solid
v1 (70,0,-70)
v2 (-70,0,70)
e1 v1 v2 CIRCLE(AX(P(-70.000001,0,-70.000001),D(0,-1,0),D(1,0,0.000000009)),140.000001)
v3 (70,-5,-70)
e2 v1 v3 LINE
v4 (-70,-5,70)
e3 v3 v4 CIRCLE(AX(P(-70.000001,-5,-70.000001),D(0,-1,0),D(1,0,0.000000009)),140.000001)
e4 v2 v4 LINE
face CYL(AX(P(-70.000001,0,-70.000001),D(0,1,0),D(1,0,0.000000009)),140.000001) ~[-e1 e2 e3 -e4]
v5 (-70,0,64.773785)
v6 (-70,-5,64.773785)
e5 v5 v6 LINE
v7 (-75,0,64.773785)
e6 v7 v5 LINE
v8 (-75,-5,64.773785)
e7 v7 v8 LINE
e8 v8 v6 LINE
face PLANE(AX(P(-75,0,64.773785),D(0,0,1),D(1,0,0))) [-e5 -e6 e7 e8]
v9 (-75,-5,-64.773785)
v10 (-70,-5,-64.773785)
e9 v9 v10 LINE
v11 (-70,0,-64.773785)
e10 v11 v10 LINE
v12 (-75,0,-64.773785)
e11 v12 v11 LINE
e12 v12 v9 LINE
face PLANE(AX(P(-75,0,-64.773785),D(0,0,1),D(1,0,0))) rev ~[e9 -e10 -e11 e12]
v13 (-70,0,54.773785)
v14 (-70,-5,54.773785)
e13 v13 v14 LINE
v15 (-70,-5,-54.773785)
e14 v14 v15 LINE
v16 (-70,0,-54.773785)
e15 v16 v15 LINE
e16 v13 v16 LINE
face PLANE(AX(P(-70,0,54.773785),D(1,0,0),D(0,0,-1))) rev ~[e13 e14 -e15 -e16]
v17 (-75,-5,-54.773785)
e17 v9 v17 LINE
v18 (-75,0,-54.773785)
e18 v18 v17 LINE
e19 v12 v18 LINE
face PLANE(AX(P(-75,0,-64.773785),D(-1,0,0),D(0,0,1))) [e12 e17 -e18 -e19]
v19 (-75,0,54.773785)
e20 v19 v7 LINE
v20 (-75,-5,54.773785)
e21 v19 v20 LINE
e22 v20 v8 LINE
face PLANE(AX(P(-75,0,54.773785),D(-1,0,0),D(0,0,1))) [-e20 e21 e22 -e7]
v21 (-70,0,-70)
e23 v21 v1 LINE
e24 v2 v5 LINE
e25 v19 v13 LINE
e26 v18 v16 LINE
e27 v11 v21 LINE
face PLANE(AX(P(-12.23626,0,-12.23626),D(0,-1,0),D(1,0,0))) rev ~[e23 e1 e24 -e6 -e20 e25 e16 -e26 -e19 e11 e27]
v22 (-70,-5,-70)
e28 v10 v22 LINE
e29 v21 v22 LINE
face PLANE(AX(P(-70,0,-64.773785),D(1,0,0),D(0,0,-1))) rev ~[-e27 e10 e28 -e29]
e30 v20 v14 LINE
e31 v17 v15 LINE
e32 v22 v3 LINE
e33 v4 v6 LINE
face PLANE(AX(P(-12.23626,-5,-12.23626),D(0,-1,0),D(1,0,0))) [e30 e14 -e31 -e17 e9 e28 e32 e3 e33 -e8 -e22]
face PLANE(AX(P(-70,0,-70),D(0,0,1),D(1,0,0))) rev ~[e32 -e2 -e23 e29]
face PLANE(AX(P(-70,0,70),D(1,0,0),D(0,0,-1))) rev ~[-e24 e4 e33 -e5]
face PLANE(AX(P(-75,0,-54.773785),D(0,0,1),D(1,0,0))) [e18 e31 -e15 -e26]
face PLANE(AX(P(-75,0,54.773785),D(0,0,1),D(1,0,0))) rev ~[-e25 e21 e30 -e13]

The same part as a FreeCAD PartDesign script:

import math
import FreeCAD as App
import Part
import Sketcher

V = App.Vector
Q = App.Units.Quantity

doc = App.newDocument("Part")
body = doc.addObject("PartDesign::Body", "Body")

sketch1 = doc.addObject("Sketcher::SketchObject", "Sketch")
body.addObject(sketch1)
sketch1.AttachmentSupport = (doc.XZ_Plane, [""])
sketch1.MapMode = "FlatFace"
sketch1.addGeometry(Part.LineSegment(V(-70, -70, 0), V(70, -70, 0)), False)
sketch1.addGeometry(Part.ArcOfCircle(Part.Circle(V(-70, -70, 0), V(0, 0, 1), 140), math.radians(0), math.radians(90)), False)
sketch1.addGeometry(Part.LineSegment(V(-70, 70, 0), V(-70, 65, 0)), False)
sketch1.addGeometry(Part.LineSegment(V(-70, 65, 0), V(-75, 65, 0)), False)
sketch1.addGeometry(Part.LineSegment(V(-75, 65, 0), V(-75, 55, 0)), False)
sketch1.addGeometry(Part.LineSegment(V(-75, 55, 0), V(-70, 55, 0)), False)
sketch1.addGeometry(Part.LineSegment(V(-70, 55, 0), V(-70, -55, 0)), False)
sketch1.addGeometry(Part.LineSegment(V(-70, -55, 0), V(-75, -55, 0)), False)
sketch1.addGeometry(Part.LineSegment(V(-75, -55, 0), V(-75, -65, 0)), False)
sketch1.addGeometry(Part.LineSegment(V(-75, -65, 0), V(-70, -65, 0)), False)
sketch1.addGeometry(Part.LineSegment(V(-70, -65, 0), V(-70, -70, 0)), False)
sketch1.addConstraint(Sketcher.Constraint("Coincident", 0, 2, 1, 1))
sketch1.addConstraint(Sketcher.Constraint("Coincident", 1, 2, 2, 1))
sketch1.addConstraint(Sketcher.Constraint("Coincident", 2, 2, 3, 1))
sketch1.addConstraint(Sketcher.Constraint("Coincident", 3, 2, 4, 1))
sketch1.addConstraint(Sketcher.Constraint("Coincident", 4, 2, 5, 1))
sketch1.addConstraint(Sketcher.Constraint("Coincident", 5, 2, 6, 1))
sketch1.addConstraint(Sketcher.Constraint("Coincident", 6, 2, 7, 1))
sketch1.addConstraint(Sketcher.Constraint("Coincident", 7, 2, 8, 1))
sketch1.addConstraint(Sketcher.Constraint("Coincident", 8, 2, 9, 1))
sketch1.addConstraint(Sketcher.Constraint("Coincident", 9, 2, 10, 1))
sketch1.addConstraint(Sketcher.Constraint("Coincident", 10, 2, 0, 1))
sketch1.addConstraint(Sketcher.Constraint("Horizontal", 0))
sketch1.addConstraint(Sketcher.Constraint("Vertical", 2))
sketch1.addConstraint(Sketcher.Constraint("Horizontal", 3))
sketch1.addConstraint(Sketcher.Constraint("Vertical", 4))
sketch1.addConstraint(Sketcher.Constraint("Horizontal", 5))
sketch1.addConstraint(Sketcher.Constraint("Vertical", 6))
sketch1.addConstraint(Sketcher.Constraint("Horizontal", 7))
sketch1.addConstraint(Sketcher.Constraint("Vertical", 8))
sketch1.addConstraint(Sketcher.Constraint("Horizontal", 9))
sketch1.addConstraint(Sketcher.Constraint("Vertical", 10))
sketch1.addConstraint(Sketcher.Constraint("Coincident", 10, 2, 1, 3))
sketch1.addConstraint(Sketcher.Constraint("Symmetric", 0, 2, 1, 2, -1, 1))
sketch1.addConstraint(Sketcher.Constraint("Symmetric", 4, 2, 7, 2, -1))
sketch1.addConstraint(Sketcher.Constraint("Symmetric", 2, 2, 9, 2, -1))
sketch1.addConstraint(Sketcher.Constraint("Vertical", 2, 2, 5, 2))
sketch1.addConstraint(Sketcher.Constraint("Radius", 1, Q("140.000001 mm")))
sketch1.addConstraint(Sketcher.Constraint("DistanceX", 3, 2, 3, 1, Q("5 mm")))
sketch1.addConstraint(Sketcher.Constraint("DistanceY", 4, 2, 4, 1, Q("10 mm")))
sketch1.addConstraint(Sketcher.Constraint("DistanceY", 6, 2, 6, 1, Q("109.54757 mm")))
pad1 = doc.addObject("PartDesign::Pad", "Pad")
body.addObject(pad1)
pad1.Profile = sketch1
pad1.Length = 5

doc.recompute()
